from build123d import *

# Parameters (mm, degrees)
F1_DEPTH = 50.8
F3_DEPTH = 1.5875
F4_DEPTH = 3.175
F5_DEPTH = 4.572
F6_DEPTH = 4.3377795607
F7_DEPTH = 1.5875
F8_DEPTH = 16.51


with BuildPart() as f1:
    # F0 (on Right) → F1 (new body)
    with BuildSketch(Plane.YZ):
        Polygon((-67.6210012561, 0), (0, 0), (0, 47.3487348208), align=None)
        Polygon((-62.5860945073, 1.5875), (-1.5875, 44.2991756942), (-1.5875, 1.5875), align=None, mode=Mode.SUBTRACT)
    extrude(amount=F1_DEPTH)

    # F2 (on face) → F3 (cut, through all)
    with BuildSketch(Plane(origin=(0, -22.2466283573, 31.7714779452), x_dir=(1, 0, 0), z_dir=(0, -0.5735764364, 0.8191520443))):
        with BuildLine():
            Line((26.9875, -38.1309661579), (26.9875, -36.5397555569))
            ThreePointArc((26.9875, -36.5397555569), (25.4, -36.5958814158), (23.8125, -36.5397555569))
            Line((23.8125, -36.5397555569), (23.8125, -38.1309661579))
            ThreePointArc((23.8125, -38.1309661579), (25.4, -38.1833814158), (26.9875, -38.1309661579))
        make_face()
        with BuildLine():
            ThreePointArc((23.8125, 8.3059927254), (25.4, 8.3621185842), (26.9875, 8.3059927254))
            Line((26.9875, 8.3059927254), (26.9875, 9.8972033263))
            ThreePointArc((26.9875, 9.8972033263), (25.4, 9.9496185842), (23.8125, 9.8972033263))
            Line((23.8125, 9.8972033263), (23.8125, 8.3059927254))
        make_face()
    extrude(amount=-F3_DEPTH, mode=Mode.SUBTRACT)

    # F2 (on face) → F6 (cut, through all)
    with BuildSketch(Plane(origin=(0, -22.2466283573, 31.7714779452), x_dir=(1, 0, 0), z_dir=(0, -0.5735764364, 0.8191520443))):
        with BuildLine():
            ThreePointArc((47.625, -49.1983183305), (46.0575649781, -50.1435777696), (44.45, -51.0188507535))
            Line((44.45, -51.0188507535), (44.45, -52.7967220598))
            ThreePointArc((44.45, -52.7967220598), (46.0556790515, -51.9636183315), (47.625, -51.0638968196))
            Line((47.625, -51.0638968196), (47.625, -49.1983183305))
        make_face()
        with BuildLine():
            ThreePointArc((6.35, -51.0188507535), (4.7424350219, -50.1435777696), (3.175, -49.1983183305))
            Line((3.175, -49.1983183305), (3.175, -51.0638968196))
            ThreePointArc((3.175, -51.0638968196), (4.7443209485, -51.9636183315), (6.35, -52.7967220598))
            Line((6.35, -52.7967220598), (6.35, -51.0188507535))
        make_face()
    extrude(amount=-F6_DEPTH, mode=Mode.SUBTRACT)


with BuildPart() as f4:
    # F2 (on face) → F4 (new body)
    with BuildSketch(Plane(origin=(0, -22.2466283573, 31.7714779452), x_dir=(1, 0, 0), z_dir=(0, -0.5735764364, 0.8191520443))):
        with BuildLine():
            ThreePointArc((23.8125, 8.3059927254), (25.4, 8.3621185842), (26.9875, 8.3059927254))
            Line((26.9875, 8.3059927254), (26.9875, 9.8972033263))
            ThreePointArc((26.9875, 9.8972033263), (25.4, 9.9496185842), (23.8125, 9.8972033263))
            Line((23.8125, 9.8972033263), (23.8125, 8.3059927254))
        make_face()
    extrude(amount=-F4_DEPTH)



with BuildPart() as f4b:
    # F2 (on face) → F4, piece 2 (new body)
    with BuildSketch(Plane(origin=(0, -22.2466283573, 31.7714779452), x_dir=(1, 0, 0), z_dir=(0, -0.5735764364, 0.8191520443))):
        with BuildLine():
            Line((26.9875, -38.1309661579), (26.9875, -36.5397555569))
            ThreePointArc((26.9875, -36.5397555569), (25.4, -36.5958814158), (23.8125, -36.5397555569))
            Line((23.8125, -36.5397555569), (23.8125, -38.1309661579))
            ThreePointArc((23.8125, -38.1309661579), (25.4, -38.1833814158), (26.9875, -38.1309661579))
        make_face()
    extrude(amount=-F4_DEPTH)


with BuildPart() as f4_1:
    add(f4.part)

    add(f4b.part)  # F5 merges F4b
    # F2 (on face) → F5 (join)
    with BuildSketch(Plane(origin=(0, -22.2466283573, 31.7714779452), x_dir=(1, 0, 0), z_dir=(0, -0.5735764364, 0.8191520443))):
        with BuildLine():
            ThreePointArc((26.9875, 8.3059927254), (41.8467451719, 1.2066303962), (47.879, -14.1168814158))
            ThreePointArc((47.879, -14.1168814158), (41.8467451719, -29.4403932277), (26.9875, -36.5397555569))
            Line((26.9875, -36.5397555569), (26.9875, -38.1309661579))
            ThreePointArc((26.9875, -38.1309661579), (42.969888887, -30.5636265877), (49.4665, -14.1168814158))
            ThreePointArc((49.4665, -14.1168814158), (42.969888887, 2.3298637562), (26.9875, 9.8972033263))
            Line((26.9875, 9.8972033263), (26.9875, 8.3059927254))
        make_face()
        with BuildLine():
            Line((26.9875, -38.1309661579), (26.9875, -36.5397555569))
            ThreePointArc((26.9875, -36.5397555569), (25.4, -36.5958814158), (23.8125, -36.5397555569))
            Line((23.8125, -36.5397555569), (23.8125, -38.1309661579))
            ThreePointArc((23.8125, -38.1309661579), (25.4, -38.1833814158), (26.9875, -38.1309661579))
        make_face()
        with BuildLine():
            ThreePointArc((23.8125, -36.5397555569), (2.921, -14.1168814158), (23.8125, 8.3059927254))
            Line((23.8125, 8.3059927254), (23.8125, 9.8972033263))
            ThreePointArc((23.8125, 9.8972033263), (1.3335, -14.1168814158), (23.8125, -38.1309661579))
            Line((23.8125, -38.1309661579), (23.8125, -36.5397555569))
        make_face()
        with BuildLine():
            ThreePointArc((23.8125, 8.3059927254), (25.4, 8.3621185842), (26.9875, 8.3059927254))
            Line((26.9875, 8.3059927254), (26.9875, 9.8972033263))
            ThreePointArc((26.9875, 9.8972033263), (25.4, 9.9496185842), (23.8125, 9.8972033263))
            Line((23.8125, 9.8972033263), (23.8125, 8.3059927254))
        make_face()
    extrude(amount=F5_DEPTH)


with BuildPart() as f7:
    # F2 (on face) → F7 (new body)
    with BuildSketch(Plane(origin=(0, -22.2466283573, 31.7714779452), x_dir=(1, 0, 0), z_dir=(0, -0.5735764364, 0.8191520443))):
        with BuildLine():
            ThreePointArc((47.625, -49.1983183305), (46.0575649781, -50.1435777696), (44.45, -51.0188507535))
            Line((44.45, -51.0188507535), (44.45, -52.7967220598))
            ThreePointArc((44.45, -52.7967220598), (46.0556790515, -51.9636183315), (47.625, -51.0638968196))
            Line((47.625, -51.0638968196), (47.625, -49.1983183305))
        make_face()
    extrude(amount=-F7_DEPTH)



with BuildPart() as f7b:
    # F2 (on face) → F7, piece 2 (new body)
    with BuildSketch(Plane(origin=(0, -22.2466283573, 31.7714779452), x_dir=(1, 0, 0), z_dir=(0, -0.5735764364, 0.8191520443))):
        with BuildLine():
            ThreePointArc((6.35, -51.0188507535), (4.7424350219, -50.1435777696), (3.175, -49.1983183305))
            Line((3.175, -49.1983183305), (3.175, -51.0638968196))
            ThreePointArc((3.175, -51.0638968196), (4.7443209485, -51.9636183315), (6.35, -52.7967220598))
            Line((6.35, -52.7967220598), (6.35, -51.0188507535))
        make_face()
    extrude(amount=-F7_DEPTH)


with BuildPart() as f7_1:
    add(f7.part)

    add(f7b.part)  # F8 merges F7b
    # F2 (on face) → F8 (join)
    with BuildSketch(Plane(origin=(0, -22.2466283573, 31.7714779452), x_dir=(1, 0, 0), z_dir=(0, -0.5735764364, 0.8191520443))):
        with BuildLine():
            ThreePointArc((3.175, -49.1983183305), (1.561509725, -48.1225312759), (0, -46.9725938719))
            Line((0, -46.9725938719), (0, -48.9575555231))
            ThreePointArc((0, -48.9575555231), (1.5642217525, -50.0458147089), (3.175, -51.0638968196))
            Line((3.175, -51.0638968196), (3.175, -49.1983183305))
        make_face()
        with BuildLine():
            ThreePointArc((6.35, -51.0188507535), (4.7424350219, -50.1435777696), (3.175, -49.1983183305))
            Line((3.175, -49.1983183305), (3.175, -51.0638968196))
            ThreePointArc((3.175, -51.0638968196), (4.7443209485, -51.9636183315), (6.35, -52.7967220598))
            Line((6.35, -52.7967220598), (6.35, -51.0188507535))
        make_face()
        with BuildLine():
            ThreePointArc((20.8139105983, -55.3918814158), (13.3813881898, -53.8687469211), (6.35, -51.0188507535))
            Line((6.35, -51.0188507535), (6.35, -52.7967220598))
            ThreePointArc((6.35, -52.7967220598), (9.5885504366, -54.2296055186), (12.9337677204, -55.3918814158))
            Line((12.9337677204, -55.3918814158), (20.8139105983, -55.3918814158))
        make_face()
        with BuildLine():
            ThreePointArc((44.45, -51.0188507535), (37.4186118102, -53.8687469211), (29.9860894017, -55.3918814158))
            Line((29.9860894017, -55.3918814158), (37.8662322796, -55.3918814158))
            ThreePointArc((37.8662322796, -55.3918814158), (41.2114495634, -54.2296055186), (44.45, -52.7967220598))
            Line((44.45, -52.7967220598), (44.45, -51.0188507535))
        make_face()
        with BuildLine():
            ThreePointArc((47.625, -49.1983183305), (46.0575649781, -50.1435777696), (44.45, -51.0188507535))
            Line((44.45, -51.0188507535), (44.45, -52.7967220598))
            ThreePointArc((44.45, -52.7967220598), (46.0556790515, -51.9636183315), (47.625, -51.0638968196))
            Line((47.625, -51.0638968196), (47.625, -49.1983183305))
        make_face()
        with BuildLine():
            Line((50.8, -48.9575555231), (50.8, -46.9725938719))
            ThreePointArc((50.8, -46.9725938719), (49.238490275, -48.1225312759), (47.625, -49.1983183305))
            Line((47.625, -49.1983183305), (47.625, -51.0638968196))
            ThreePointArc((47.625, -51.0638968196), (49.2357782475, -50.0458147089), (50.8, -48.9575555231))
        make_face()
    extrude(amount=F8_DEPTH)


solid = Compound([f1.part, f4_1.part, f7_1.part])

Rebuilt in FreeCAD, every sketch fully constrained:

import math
import FreeCAD as App
import Part
import Sketcher
from FreeCAD import Vector
Q = App.Units.Quantity

doc = App.newDocument("Part")
params = doc.addObject("Spreadsheet::Sheet", "Params")
for row, (alias, value) in enumerate([
    ("sketch1_length", "3.25 in"),
    ("pad1_length", "2 in"),
    ("sketch2_radius", "0.885 in"),
    ("pocket1_length", "0.0625 in"),
    ("sketch3_radius", "1.635 in"),
    ("sketch4_radius", "0.885 in"),
    ("pad2_length", "0.125 in"),
    ("sketch5_radius", "0.885 in"),
    ("pad3_length", "0.125 in"),
    ("sketch6_radius", "0.885 in"),
    ("pad4_length", "0.18 in"),
    ("sketch7_radius", "1.635 in"),
    ("pad5_length", "0.0625 in"),
    ("sketch8_radius", "1.635 in"),
    ("pad6_length", "0.0625 in"),
    ("sketch9_radius", "1.635 in"),
    ("pad7_length", "0.65 in"),
], start=1):
    params.set(f"A{row}", alias)
    params.set(f"B{row}", "=" + value)
    params.setAlias(f"B{row}", alias)

body = doc.addObject("PartDesign::Body", "Body")

sketch1 = doc.addObject("Sketcher::SketchObject", "Sketch")
body.addObject(sketch1)
sketch1.AttachmentSupport = (doc.YZ_Plane, [""])
sketch1.MapMode = "FlatFace"
sketch1.addGeometry([
    Part.LineSegment(Vector(-68, 0, 0), Vector(0, 0, 0)),
    Part.LineSegment(Vector(0, 0, 0), Vector(0, 47, 0)),
    Part.LineSegment(Vector(0, 47, 0), Vector(-68, 0, 0)),
    Part.LineSegment(Vector(-2, 2, 0), Vector(-63, 2, 0)),
    Part.LineSegment(Vector(-63, 2, 0), Vector(-2, 44, 0)),
    Part.LineSegment(Vector(-2, 44, 0), Vector(-2, 2, 0)),
], False)
sketch1.addConstraint([
    Sketcher.Constraint("Coincident", 0, 2, 1, 1),
    Sketcher.Constraint("Coincident", 1, 2, 2, 1),
    Sketcher.Constraint("Coincident", 2, 2, 0, 1),
    Sketcher.Constraint("Coincident", 3, 2, 4, 1),
    Sketcher.Constraint("Coincident", 4, 2, 5, 1),
    Sketcher.Constraint("Coincident", 5, 2, 3, 1),
    Sketcher.Constraint("Horizontal", 0),
    Sketcher.Constraint("Vertical", 1),
    Sketcher.Constraint("Horizontal", 3),
    Sketcher.Constraint("Vertical", 5),
    Sketcher.Constraint("Coincident", 0, 2, -1, 1),
    Sketcher.Constraint("Parallel", 2, 4),
    Sketcher.Constraint("Angle", 2, Q("-145 deg")),
    Sketcher.Constraint("Distance", 2, Q("3.25 in")),
    Sketcher.Constraint("DistanceY", -1, 1, 3, 2, Q("0.0625 in")),
    Sketcher.Constraint("DistanceX", 4, 2, -1, 1, Q("0.0625 in")),
    Sketcher.Constraint("DistanceX", 3, 2, 3, 1, 60.998595),
])
sketch1.setExpression("Constraints[13]", "Params.sketch1_length")
pad1 = doc.addObject("PartDesign::Pad", "Pad")
body.addObject(pad1)
pad1.Profile = sketch1
pad1.setExpression("Length", "Params.pad1_length")

sketch2 = doc.addObject("Sketcher::SketchObject", "Sketch001")
body.addObject(sketch2)
sketch2.Placement = App.Placement(Vector(0, -22.246628, 31.771478), App.Rotation(Vector(1, 0, 0), Vector(0, 0.819152044, 0.573576436), Vector(0, -0.573576436, 0.819152044), "ZXY"))
sketch2.addGeometry([
    Part.LineSegment(Vector(27, -38.1, 0), Vector(27, -36.5, 0)),
    Part.ArcOfCircle(Part.Circle(Vector(25.4, -14.1, 0), Vector(0, 0, 1), 22.5), math.radians(-94.05), math.radians(-85.95)),
    Part.LineSegment(Vector(23.8, -36.5, 0), Vector(23.8, -38.1, 0)),
    Part.ArcOfCircle(Part.Circle(Vector(25.4, -14.1, 0), Vector(0, 0, 1), 24.1), math.radians(-93.78), math.radians(-86.22)),
    Part.ArcOfCircle(Part.Circle(Vector(25.4, -14.1, 0), Vector(0, 0, 1), 22.5), math.radians(85.95), math.radians(94.05)),
    Part.LineSegment(Vector(27, 8.3, 0), Vector(27, 9.9, 0)),
    Part.ArcOfCircle(Part.Circle(Vector(25.4, -14.1, 0), Vector(0, 0, 1), 24.1), math.radians(86.22), math.radians(93.78)),
    Part.LineSegment(Vector(23.8, 9.9, 0), Vector(23.8, 8.3, 0)),
], False)
sketch2.addConstraint([
    Sketcher.Constraint("Coincident", 0, 2, 1, 2),
    Sketcher.Constraint("Coincident", 1, 1, 2, 1),
    Sketcher.Constraint("Coincident", 2, 2, 3, 1),
    Sketcher.Constraint("Coincident", 3, 2, 0, 1),
    Sketcher.Constraint("Coincident", 4, 1, 5, 1),
    Sketcher.Constraint("Coincident", 5, 2, 6, 1),
    Sketcher.Constraint("Coincident", 6, 2, 7, 1),
    Sketcher.Constraint("Coincident", 7, 2, 4, 2),
    Sketcher.Constraint("Vertical", 0),
    Sketcher.Constraint("Vertical", 2),
    Sketcher.Constraint("Vertical", 5),
    Sketcher.Constraint("Vertical", 7),
    Sketcher.Constraint("Coincident", 3, 3, 1, 3),
    Sketcher.Constraint("Coincident", 4, 3, 1, 3),
    Sketcher.Constraint("Coincident", 6, 3, 1, 3),
    Sketcher.Constraint("Equal", 1, 4),
    Sketcher.Constraint("Equal", 3, 6),
    Sketcher.Constraint("Horizontal", 0, 2, 1, 1),
    Sketcher.Constraint("Horizontal", 5, 2, 6, 2),
    Sketcher.Constraint("Vertical", 3, 2, 4, 1),
    Sketcher.Constraint("DistanceX", -1, 1, 1, 3, Q("1 in")),
    Sketcher.Constraint("Radius", 1, Q("0.885 in")),
    Sketcher.Constraint("Radius", 3, Q("0.9475 in")),
    Sketcher.Constraint("DistanceX", -1, 1, 0, 2, Q("1.0625 in")),
    Sketcher.Constraint("DistanceY", 1, 3, -1, 1, 14.116881),
])
sketch2.setExpression("Constraints[21]", "Params.sketch2_radius")
pocket1 = doc.addObject("PartDesign::Pocket", "Pocket")
body.addObject(pocket1)
pocket1.Profile = sketch2
pocket1.setExpression("Length", "Params.pocket1_length")

sketch3 = doc.addObject("Sketcher::SketchObject", "Sketch002")
body.addObject(sketch3)
sketch3.Placement = App.Placement(Vector(0, -22.246628, 31.771478), App.Rotation(Vector(1, 0, 0), Vector(0, 0.819152044, 0.573576436), Vector(0, -0.573576436, 0.819152044), "ZXY"))
sketch3.addGeometry([
    Part.ArcOfCircle(Part.Circle(Vector(25.4, -14.1, 0), Vector(0, 0, 1), 41.5), math.radians(-62.7), math.radians(-57.64)),
    Part.LineSegment(Vector(44.5, -51, 0), Vector(44.5, -52.8, 0)),
    Part.ArcOfCircle(Part.Circle(Vector(25.4, -14.1, 0), Vector(0, 0, 1), 43.1), math.radians(-63.78), math.radians(-58.97)),
    Part.LineSegment(Vector(47.6, -51.1, 0), Vector(47.6, -49.2, 0)),
    Part.ArcOfCircle(Part.Circle(Vector(25.4, -14.1, 0), Vector(0, 0, 1), 41.5), math.radians(-122.36), math.radians(-117.3)),
    Part.LineSegment(Vector(3.2, -49.2, 0), Vector(3.2, -51.1, 0)),
    Part.ArcOfCircle(Part.Circle(Vector(25.4, -14.1, 0), Vector(0, 0, 1), 43.1), math.radians(-121.03), math.radians(-116.22)),
    Part.LineSegment(Vector(6.3, -52.8, 0), Vector(6.3, -51, 0)),
], False)
sketch3.addConstraint([
    Sketcher.Constraint("Coincident", 0, 1, 1, 1),
    Sketcher.Constraint("Coincident", 1, 2, 2, 1),
    Sketcher.Constraint("Coincident", 2, 2, 3, 1),
    Sketcher.Constraint("Coincident", 3, 2, 0, 2),
    Sketcher.Constraint("Coincident", 4, 1, 5, 1),
    Sketcher.Constraint("Coincident", 5, 2, 6, 1),
    Sketcher.Constraint("Coincident", 6, 2, 7, 1),
    Sketcher.Constraint("Coincident", 7, 2, 4, 2),
    Sketcher.Constraint("Vertical", 1),
    Sketcher.Constraint("Vertical", 3),
    Sketcher.Constraint("Vertical", 5),
    Sketcher.Constraint("Vertical", 7),
    Sketcher.Constraint("Coincident", 2, 3, 0, 3),
    Sketcher.Constraint("Coincident", 4, 3, 0, 3),
    Sketcher.Constraint("Coincident", 6, 3, 0, 3),
    Sketcher.Constraint("Equal", 0, 4),
    Sketcher.Constraint("Equal", 2, 6),
    Sketcher.Constraint("Horizontal", 3, 2, 4, 1),
    Sketcher.Constraint("Horizontal", 1, 2, 6, 2),
    Sketcher.Constraint("DistanceX", -1, 1, 0, 3, Q("1 in")),
    Sketcher.Constraint("Radius", 0, Q("1.635 in")),
    Sketcher.Constraint("Radius", 2, Q("1.6975 in")),
    Sketcher.Constraint("DistanceX", 6, 2, 1, 2, Q("1.5 in")),
    Sketcher.Constraint("DistanceX", -1, 1, 2, 2, Q("1.875 in")),
    Sketcher.Constraint("DistanceY", 0, 3, -1, 1, 14.116881),
])
sketch3.setExpression("Constraints[20]", "Params.sketch3_radius")
pocket2 = doc.addObject("PartDesign::Pocket", "Pocket001")
body.addObject(pocket2)
pocket2.Profile = sketch3
pocket2.Type = "ThroughAll"
body2 = doc.addObject("PartDesign::Body", "Body001")

sketch4 = doc.addObject("Sketcher::SketchObject", "Sketch003")
body2.addObject(sketch4)
sketch4.Placement = App.Placement(Vector(0, -22.246628, 31.771478), App.Rotation(Vector(1, 0, 0), Vector(0, 0.819152044, 0.573576436), Vector(0, -0.573576436, 0.819152044), "ZXY"))
sketch4.addGeometry([
    Part.ArcOfCircle(Part.Circle(Vector(25.4, -14.1, 0), Vector(0, 0, 1), 22.5), math.radians(85.95), math.radians(94.05)),
    Part.LineSegment(Vector(27, 8.3, 0), Vector(27, 9.9, 0)),
    Part.ArcOfCircle(Part.Circle(Vector(25.4, -14.1, 0), Vector(0, 0, 1), 24.1), math.radians(86.22), math.radians(93.78)),
    Part.LineSegment(Vector(23.8, 9.9, 0), Vector(23.8, 8.3, 0)),
], False)
sketch4.addConstraint([
    Sketcher.Constraint("Coincident", 0, 1, 1, 1),
    Sketcher.Constraint("Coincident", 1, 2, 2, 1),
    Sketcher.Constraint("Coincident", 2, 2, 3, 1),
    Sketcher.Constraint("Coincident", 3, 2, 0, 2),
    Sketcher.Constraint("Vertical", 1),
    Sketcher.Constraint("Vertical", 3),
    Sketcher.Constraint("Coincident", 2, 3, 0, 3),
    Sketcher.Constraint("Horizontal", 1, 2, 2, 2),
    Sketcher.Constraint("DistanceX", -1, 1, 0, 3, Q("1 in")),
    Sketcher.Constraint("Radius", 0, Q("0.885 in")),
    Sketcher.Constraint("Radius", 2, Q("0.9475 in")),
    Sketcher.Constraint("DistanceX", -1, 1, 0, 1, Q("1.0625 in")),
    Sketcher.Constraint("DistanceY", 0, 3, -1, 1, 14.116881),
])
sketch4.setExpression("Constraints[9]", "Params.sketch4_radius")
pad2 = doc.addObject("PartDesign::Pad", "Pad001")
body2.addObject(pad2)
pad2.Profile = sketch4
pad2.setExpression("Length", "Params.pad2_length")
pad2.Reversed = True
body3 = doc.addObject("PartDesign::Body", "Body002")

sketch5 = doc.addObject("Sketcher::SketchObject", "Sketch004")
body3.addObject(sketch5)
sketch5.Placement = App.Placement(Vector(0, -22.246628, 31.771478), App.Rotation(Vector(1, 0, 0), Vector(0, 0.819152044, 0.573576436), Vector(0, -0.573576436, 0.819152044), "ZXY"))
sketch5.addGeometry([
    Part.LineSegment(Vector(27, -38.1, 0), Vector(27, -36.5, 0)),
    Part.ArcOfCircle(Part.Circle(Vector(25.4, -14.1, 0), Vector(0, 0, 1), 22.5), math.radians(-94.05), math.radians(-85.95)),
    Part.LineSegment(Vector(23.8, -36.5, 0), Vector(23.8, -38.1, 0)),
    Part.ArcOfCircle(Part.Circle(Vector(25.4, -14.1, 0), Vector(0, 0, 1), 24.1), math.radians(-93.78), math.radians(-86.22)),
], False)
sketch5.addConstraint([
    Sketcher.Constraint("Coincident", 0, 2, 1, 2),
    Sketcher.Constraint("Coincident", 1, 1, 2, 1),
    Sketcher.Constraint("Coincident", 2, 2, 3, 1),
    Sketcher.Constraint("Coincident", 3, 2, 0, 1),
    Sketcher.Constraint("Vertical", 0),
    Sketcher.Constraint("Vertical", 2),
    Sketcher.Constraint("Coincident", 3, 3, 1, 3),
    Sketcher.Constraint("Horizontal", 0, 2, 1, 1),
    Sketcher.Constraint("DistanceX", -1, 1, 1, 3, Q("1 in")),
    Sketcher.Constraint("Radius", 1, Q("0.885 in")),
    Sketcher.Constraint("Radius", 3, Q("0.9475 in")),
    Sketcher.Constraint("DistanceX", -1, 1, 0, 2, Q("1.0625 in")),
    Sketcher.Constraint("DistanceY", 1, 3, -1, 1, 14.116881),
])
sketch5.setExpression("Constraints[9]", "Params.sketch5_radius")
pad3 = doc.addObject("PartDesign::Pad", "Pad002")
body3.addObject(pad3)
pad3.Profile = sketch5
pad3.setExpression("Length", "Params.pad3_length")
pad3.Reversed = True
body2.AllowCompound = True
doc.recompute()

boolean = doc.addObject("PartDesign::Boolean", "Boolean")
body2.addObject(boolean)
boolean.Type = "Fuse"
boolean.addObjects([body3])

sketch6 = doc.addObject("Sketcher::SketchObject", "Sketch005")
body2.addObject(sketch6)
sketch6.Placement = App.Placement(Vector(0, -22.246628, 31.771478), App.Rotation(Vector(1, 0, 0), Vector(0, 0.819152044, 0.573576436), Vector(0, -0.573576436, 0.819152044), "ZXY"))
sketch6.addGeometry([
    Part.ArcOfCircle(Part.Circle(Vector(25.4, -14.1, 0), Vector(0, 0, 1), 24.1), math.radians(94), math.radians(266)),
    Part.ArcOfCircle(Part.Circle(Vector(25.4, -14.1, 0), Vector(0, 0, 1), 24.1), math.radians(-93.78), math.radians(-86.22)),
    Part.ArcOfCircle(Part.Circle(Vector(25.4, -14.1, 0), Vector(0, 0, 1), 24.1), math.radians(-86), math.radians(0)),
    Part.ArcOfCircle(Part.Circle(Vector(25.4, -14.1, 0), Vector(0, 0, 1), 24.1), math.radians(0), math.radians(86)),
    Part.ArcOfCircle(Part.Circle(Vector(25.4, -14.1, 0), Vector(0, 0, 1), 24.1), math.radians(86.22), math.radians(93.78)),
    Part.ArcOfCircle(Part.Circle(Vector(25.4, -14.1, 0), Vector(0, 0, 1), 22.5), math.radians(0), math.radians(86)),
    Part.ArcOfCircle(Part.Circle(Vector(25.4, -14.1, 0), Vector(0, 0, 1), 22.5), math.radians(-86), math.radians(0)),
    Part.ArcOfCircle(Part.Circle(Vector(25.4, -14.1, 0), Vector(0, 0, 1), 22.5), math.radians(-94.05), math.radians(-85.95)),
    Part.ArcOfCircle(Part.Circle(Vector(25.4, -14.1, 0), Vector(0, 0, 1), 22.5), math.radians(94), math.radians(266)),
    Part.ArcOfCircle(Part.Circle(Vector(25.4, -14.1, 0), Vector(0, 0, 1), 22.5), math.radians(85.95), math.radians(94.05)),
], False)
sketch6.addConstraint([
    Sketcher.Constraint("Tangent", 0, 2, 1, 1),
    Sketcher.Constraint("Tangent", 1, 2, 2, 1),
    Sketcher.Constraint("Tangent", 2, 2, 3, 1),
    Sketcher.Constraint("Tangent", 3, 2, 4, 1),
    Sketcher.Constraint("Tangent", 4, 2, 0, 1),
    Sketcher.Constraint("Tangent", 5, 1, 6, 2),
    Sketcher.Constraint("Tangent", 6, 1, 7, 2),
    Sketcher.Constraint("Tangent", 7, 1, 8, 2),
    Sketcher.Constraint("Tangent", 8, 1, 9, 2),
    Sketcher.Constraint("Tangent", 9, 1, 5, 2),
    Sketcher.Constraint("Coincident", 2, 3, 0, 3),
    Sketcher.Constraint("Coincident", 5, 3, 0, 3),
    Sketcher.Constraint("Coincident", 7, 3, 0, 3),
    Sketcher.Constraint("Horizontal", 0, 2, 1, 2),
    Sketcher.Constraint("Horizontal", 9, 3, 2, 2),
    Sketcher.Constraint("Horizontal", 3, 2, 4, 2),
    Sketcher.Constraint("Horizontal", 2, 2, 5, 1),
    Sketcher.Constraint("Horizontal", 6, 1, 7, 1),
    Sketcher.Constraint("Horizontal", 8, 1, 9, 1),
    Sketcher.Constraint("Vertical", 1, 2, 3, 2),
    Sketcher.Constraint("Vertical", 3, 2, 6, 1),
    Sketcher.Constraint("Vertical", 7, 1, 8, 1),
    Sketcher.Constraint("DistanceX", -1, 1, 0, 3, Q("1 in")),
    Sketcher.Constraint("Radius", 5, Q("0.885 in")),
    Sketcher.Constraint("Radius", 0, Q("0.9475 in")),
    Sketcher.Constraint("DistanceX", -1, 1, 0, 2, Q("0.9375 in")),
    Sketcher.Constraint("DistanceY", 0, 3, -1, 1, 14.116881),
])
sketch6.setExpression("Constraints[23]", "Params.sketch6_radius")
pad4 = doc.addObject("PartDesign::Pad", "Pad003")
body2.addObject(pad4)
pad4.Profile = sketch6
pad4.setExpression("Length", "Params.pad4_length")
body4 = doc.addObject("PartDesign::Body", "Body003")

sketch7 = doc.addObject("Sketcher::SketchObject", "Sketch006")
body4.addObject(sketch7)
sketch7.Placement = App.Placement(Vector(0, -22.246628, 31.771478), App.Rotation(Vector(1, 0, 0), Vector(0, 0.819152044, 0.573576436), Vector(0, -0.573576436, 0.819152044), "ZXY"))
sketch7.addGeometry([
    Part.ArcOfCircle(Part.Circle(Vector(25.4, -14.1, 0), Vector(0, 0, 1), 41.5), math.radians(-62.7), math.radians(-57.64)),
    Part.LineSegment(Vector(44.5, -51, 0), Vector(44.5, -52.8, 0)),
    Part.ArcOfCircle(Part.Circle(Vector(25.4, -14.1, 0), Vector(0, 0, 1), 43.1), math.radians(-63.78), math.radians(-58.97)),
    Part.LineSegment(Vector(47.6, -51.1, 0), Vector(47.6, -49.2, 0)),
], False)
sketch7.addConstraint([
    Sketcher.Constraint("Coincident", 0, 1, 1, 1),
    Sketcher.Constraint("Coincident", 1, 2, 2, 1),
    Sketcher.Constraint("Coincident", 2, 2, 3, 1),
    Sketcher.Constraint("Coincident", 3, 2, 0, 2),
    Sketcher.Constraint("Vertical", 1),
    Sketcher.Constraint("Vertical", 3),
    Sketcher.Constraint("Coincident", 2, 3, 0, 3),
    Sketcher.Constraint("DistanceX", -1, 1, 0, 3, Q("1 in")),
    Sketcher.Constraint("Radius", 0, Q("1.635 in")),
    Sketcher.Constraint("Radius", 2, Q("1.6975 in")),
    Sketcher.Constraint("DistanceX", -1, 1, 0, 1, Q("1.75 in")),
    Sketcher.Constraint("DistanceX", -1, 1, 2, 2, Q("1.875 in")),
    Sketcher.Constraint("DistanceY", 0, 3, -1, 1, 14.116881),
])
sketch7.setExpression("Constraints[8]", "Params.sketch7_radius")
pad5 = doc.addObject("PartDesign::Pad", "Pad004")
body4.addObject(pad5)
pad5.Profile = sketch7
pad5.setExpression("Length", "Params.pad5_length")
pad5.Reversed = True
body5 = doc.addObject("PartDesign::Body", "Body004")

sketch8 = doc.addObject("Sketcher::SketchObject", "Sketch007")
body5.addObject(sketch8)
sketch8.Placement = App.Placement(Vector(0, -22.246628, 31.771478), App.Rotation(Vector(1, 0, 0), Vector(0, 0.819152044, 0.573576436), Vector(0, -0.573576436, 0.819152044), "ZXY"))
sketch8.addGeometry([
    Part.ArcOfCircle(Part.Circle(Vector(25.4, -14.1, 0), Vector(0, 0, 1), 41.5), math.radians(-122.36), math.radians(-117.3)),
    Part.LineSegment(Vector(3.2, -49.2, 0), Vector(3.2, -51.1, 0)),
    Part.ArcOfCircle(Part.Circle(Vector(25.4, -14.1, 0), Vector(0, 0, 1), 43.1), math.radians(-121.03), math.radians(-116.22)),
    Part.LineSegment(Vector(6.3, -52.8, 0), Vector(6.3, -51, 0)),
], False)
sketch8.addConstraint([
    Sketcher.Constraint("Coincident", 0, 1, 1, 1),
    Sketcher.Constraint("Coincident", 1, 2, 2, 1),
    Sketcher.Constraint("Coincident", 2, 2, 3, 1),
    Sketcher.Constraint("Coincident", 3, 2, 0, 2),
    Sketcher.Constraint("Vertical", 1),
    Sketcher.Constraint("Vertical", 3),
    Sketcher.Constraint("Coincident", 2, 3, 0, 3),
    Sketcher.Constraint("DistanceX", -1, 1, 0, 3, Q("1 in")),
    Sketcher.Constraint("Radius", 0, Q("1.635 in")),
    Sketcher.Constraint("Radius", 2, Q("1.6975 in")),
    Sketcher.Constraint("DistanceX", -1, 1, 2, 2, Q("0.25 in")),
    Sketcher.Constraint("DistanceX", -1, 1, 0, 1, Q("0.125 in")),
    Sketcher.Constraint("DistanceY", 0, 3, -1, 1, 14.116881),
])
sketch8.setExpression("Constraints[8]", "Params.sketch8_radius")
pad6 = doc.addObject("PartDesign::Pad", "Pad005")
body5.addObject(pad6)
pad6.Profile = sketch8
pad6.setExpression("Length", "Params.pad6_length")
pad6.Reversed = True
body4.AllowCompound = True
doc.recompute()

boolean2 = doc.addObject("PartDesign::Boolean", "Boolean001")
body4.addObject(boolean2)
boolean2.Type = "Fuse"
boolean2.addObjects([body5])

sketch9 = doc.addObject("Sketcher::SketchObject", "Sketch008")
body4.addObject(sketch9)
sketch9.Placement = App.Placement(Vector(0, -22.246628, 31.771478), App.Rotation(Vector(1, 0, 0), Vector(0, 0.819152044, 0.573576436), Vector(0, -0.573576436, 0.819152044), "ZXY"))
sketch9.addGeometry([
    Part.ArcOfCircle(Part.Circle(Vector(25.4, -14.1, 0), Vector(0, 0, 1), 41.5), math.radians(-127.71), math.radians(-122.36)),
    Part.LineSegment(Vector(0, -47, 0), Vector(0, -49, 0)),
    Part.ArcOfCircle(Part.Circle(Vector(25.4, -14.1, 0), Vector(0, 0, 1), 43.1), math.radians(-126.09), math.radians(-121.03)),
    Part.ArcOfCircle(Part.Circle(Vector(25.4, -14.1, 0), Vector(0, 0, 1), 43.1), math.radians(-121.03), math.radians(-116.22)),
    Part.ArcOfCircle(Part.Circle(Vector(25.4, -14.1, 0), Vector(0, 0, 1), 43.1), math.radians(-116.22), math.radians(-106.81)),
    Part.LineSegment(Vector(12.9, -55.4, 0), Vector(20.8, -55.4, 0)),
    Part.ArcOfCircle(Part.Circle(Vector(25.4, -14.1, 0), Vector(0, 0, 1), 41.5), math.radians(-117), math.radians(-96)),
    Part.ArcOfCircle(Part.Circle(Vector(25.4, -14.1, 0), Vector(0, 0, 1), 41.5), math.radians(-122.36), math.radians(-117.3)),
    Part.ArcOfCircle(Part.Circle(Vector(25.4, -14.1, 0), Vector(0, 0, 1), 41.5), math.radians(-84), math.radians(-63)),
    Part.LineSegment(Vector(30, -55.4, 0), Vector(37.9, -55.4, 0)),
    Part.ArcOfCircle(Part.Circle(Vector(25.4, -14.1, 0), Vector(0, 0, 1), 43.1), math.radians(-73.19), math.radians(-63.78)),
    Part.ArcOfCircle(Part.Circle(Vector(25.4, -14.1, 0), Vector(0, 0, 1), 43.1), math.radians(-63.78), math.radians(-58.97)),
    Part.ArcOfCircle(Part.Circle(Vector(25.4, -14.1, 0), Vector(0, 0, 1), 43.1), math.radians(-58.97), math.radians(-53.91)),
    Part.LineSegment(Vector(50.8, -49, 0), Vector(50.8, -47, 0)),
    Part.ArcOfCircle(Part.Circle(Vector(25.4, -14.1, 0), Vector(0, 0, 1), 41.5), math.radians(-57.64), math.radians(-52.29)),
    Part.ArcOfCircle(Part.Circle(Vector(25.4, -14.1, 0), Vector(0, 0, 1), 41.5), math.radians(-62.7), math.radians(-57.64)),
], False)
sketch9.addConstraint([
    Sketcher.Constraint("Coincident", 0, 1, 1, 1),
    Sketcher.Constraint("Coincident", 1, 2, 2, 1),
    Sketcher.Constraint("Tangent", 2, 2, 3, 1),
    Sketcher.Constraint("Tangent", 3, 2, 4, 1),
    Sketcher.Constraint("Coincident", 4, 2, 5, 1),
    Sketcher.Constraint("Coincident", 5, 2, 6, 2),
    Sketcher.Constraint("Tangent", 6, 1, 7, 2),
    Sketcher.Constraint("Tangent", 7, 1, 0, 2),
    Sketcher.Constraint("Coincident", 8, 1, 9, 1),
    Sketcher.Constraint("Coincident", 9, 2, 10, 1),
    Sketcher.Constraint("Tangent", 10, 2, 11, 1),
    Sketcher.Constraint("Tangent", 11, 2, 12, 1),
    Sketcher.Constraint("Coincident", 12, 2, 13, 1),
    Sketcher.Constraint("Coincident", 13, 2, 14, 2),
    Sketcher.Constraint("Tangent", 14, 1, 15, 2),
    Sketcher.Constraint("Tangent", 15, 1, 8, 2),
    Sketcher.Constraint("Vertical", 1),
    Sketcher.Constraint("Horizontal", 5),
    Sketcher.Constraint("Horizontal", 9),
    Sketcher.Constraint("Vertical", 13),
    Sketcher.Constraint("Coincident", 2, 3, 0, 3),
    Sketcher.Constraint("Coincident", 4, 3, 0, 3),
    Sketcher.Constraint("Coincident", 6, 3, 0, 3),
    Sketcher.Constraint("Coincident", 8, 3, 0, 3),
    Sketcher.Constraint("Coincident", 10, 3, 0, 3),
    Sketcher.Constraint("Coincident", 12, 3, 0, 3),
    Sketcher.Constraint("Coincident", 14, 3, 0, 3),
    Sketcher.Constraint("Equal", 7, 8),
    Sketcher.Constraint("Equal", 4, 10),
    Sketcher.Constraint("PointOnObject", 0, 1, -2),
    Sketcher.Constraint("Horizontal", 5, 2, 8, 1),
    Sketcher.Constraint("Horizontal", 3, 2, 10, 2),
    Sketcher.Constraint("Horizontal", 2, 2, 11, 2),
    Sketcher.Constraint("Horizontal", 1, 2, 12, 2),
    Sketcher.Constraint("Horizontal", 7, 1, 14, 1),
    Sketcher.Constraint("Horizontal", 6, 1, 15, 1),
    Sketcher.Constraint("Vertical", 3, 2, 6, 1),
    Sketcher.Constraint("Vertical", 2, 2, 7, 1),
    Sketcher.Constraint("DistanceX", -1, 1, 0, 3, Q("1 in")),
    Sketcher.Constraint("Radius", 0, Q("1.635 in")),
    Sketcher.Constraint("Radius", 2, Q("1.6975 in")),
    Sketcher.Constraint("DistanceX", 3, 2, 10, 2, Q("1.5 in")),
    Sketcher.Constraint("DistanceX", -1, 1, 2, 2, Q("0.125 in")),
    Sketcher.Constraint("DistanceY", 4, 2, 0, 3, Q("1.625 in")),
    Sketcher.Constraint("DistanceY", 0, 3, -1, 1, 14.116881),
])
sketch9.setExpression("Constraints[39]", "Params.sketch9_radius")
pad7 = doc.addObject("PartDesign::Pad", "Pad006")
body4.addObject(pad7)
pad7.Profile = sketch9
pad7.setExpression("Length", "Params.pad7_length")

doc.recompute()
